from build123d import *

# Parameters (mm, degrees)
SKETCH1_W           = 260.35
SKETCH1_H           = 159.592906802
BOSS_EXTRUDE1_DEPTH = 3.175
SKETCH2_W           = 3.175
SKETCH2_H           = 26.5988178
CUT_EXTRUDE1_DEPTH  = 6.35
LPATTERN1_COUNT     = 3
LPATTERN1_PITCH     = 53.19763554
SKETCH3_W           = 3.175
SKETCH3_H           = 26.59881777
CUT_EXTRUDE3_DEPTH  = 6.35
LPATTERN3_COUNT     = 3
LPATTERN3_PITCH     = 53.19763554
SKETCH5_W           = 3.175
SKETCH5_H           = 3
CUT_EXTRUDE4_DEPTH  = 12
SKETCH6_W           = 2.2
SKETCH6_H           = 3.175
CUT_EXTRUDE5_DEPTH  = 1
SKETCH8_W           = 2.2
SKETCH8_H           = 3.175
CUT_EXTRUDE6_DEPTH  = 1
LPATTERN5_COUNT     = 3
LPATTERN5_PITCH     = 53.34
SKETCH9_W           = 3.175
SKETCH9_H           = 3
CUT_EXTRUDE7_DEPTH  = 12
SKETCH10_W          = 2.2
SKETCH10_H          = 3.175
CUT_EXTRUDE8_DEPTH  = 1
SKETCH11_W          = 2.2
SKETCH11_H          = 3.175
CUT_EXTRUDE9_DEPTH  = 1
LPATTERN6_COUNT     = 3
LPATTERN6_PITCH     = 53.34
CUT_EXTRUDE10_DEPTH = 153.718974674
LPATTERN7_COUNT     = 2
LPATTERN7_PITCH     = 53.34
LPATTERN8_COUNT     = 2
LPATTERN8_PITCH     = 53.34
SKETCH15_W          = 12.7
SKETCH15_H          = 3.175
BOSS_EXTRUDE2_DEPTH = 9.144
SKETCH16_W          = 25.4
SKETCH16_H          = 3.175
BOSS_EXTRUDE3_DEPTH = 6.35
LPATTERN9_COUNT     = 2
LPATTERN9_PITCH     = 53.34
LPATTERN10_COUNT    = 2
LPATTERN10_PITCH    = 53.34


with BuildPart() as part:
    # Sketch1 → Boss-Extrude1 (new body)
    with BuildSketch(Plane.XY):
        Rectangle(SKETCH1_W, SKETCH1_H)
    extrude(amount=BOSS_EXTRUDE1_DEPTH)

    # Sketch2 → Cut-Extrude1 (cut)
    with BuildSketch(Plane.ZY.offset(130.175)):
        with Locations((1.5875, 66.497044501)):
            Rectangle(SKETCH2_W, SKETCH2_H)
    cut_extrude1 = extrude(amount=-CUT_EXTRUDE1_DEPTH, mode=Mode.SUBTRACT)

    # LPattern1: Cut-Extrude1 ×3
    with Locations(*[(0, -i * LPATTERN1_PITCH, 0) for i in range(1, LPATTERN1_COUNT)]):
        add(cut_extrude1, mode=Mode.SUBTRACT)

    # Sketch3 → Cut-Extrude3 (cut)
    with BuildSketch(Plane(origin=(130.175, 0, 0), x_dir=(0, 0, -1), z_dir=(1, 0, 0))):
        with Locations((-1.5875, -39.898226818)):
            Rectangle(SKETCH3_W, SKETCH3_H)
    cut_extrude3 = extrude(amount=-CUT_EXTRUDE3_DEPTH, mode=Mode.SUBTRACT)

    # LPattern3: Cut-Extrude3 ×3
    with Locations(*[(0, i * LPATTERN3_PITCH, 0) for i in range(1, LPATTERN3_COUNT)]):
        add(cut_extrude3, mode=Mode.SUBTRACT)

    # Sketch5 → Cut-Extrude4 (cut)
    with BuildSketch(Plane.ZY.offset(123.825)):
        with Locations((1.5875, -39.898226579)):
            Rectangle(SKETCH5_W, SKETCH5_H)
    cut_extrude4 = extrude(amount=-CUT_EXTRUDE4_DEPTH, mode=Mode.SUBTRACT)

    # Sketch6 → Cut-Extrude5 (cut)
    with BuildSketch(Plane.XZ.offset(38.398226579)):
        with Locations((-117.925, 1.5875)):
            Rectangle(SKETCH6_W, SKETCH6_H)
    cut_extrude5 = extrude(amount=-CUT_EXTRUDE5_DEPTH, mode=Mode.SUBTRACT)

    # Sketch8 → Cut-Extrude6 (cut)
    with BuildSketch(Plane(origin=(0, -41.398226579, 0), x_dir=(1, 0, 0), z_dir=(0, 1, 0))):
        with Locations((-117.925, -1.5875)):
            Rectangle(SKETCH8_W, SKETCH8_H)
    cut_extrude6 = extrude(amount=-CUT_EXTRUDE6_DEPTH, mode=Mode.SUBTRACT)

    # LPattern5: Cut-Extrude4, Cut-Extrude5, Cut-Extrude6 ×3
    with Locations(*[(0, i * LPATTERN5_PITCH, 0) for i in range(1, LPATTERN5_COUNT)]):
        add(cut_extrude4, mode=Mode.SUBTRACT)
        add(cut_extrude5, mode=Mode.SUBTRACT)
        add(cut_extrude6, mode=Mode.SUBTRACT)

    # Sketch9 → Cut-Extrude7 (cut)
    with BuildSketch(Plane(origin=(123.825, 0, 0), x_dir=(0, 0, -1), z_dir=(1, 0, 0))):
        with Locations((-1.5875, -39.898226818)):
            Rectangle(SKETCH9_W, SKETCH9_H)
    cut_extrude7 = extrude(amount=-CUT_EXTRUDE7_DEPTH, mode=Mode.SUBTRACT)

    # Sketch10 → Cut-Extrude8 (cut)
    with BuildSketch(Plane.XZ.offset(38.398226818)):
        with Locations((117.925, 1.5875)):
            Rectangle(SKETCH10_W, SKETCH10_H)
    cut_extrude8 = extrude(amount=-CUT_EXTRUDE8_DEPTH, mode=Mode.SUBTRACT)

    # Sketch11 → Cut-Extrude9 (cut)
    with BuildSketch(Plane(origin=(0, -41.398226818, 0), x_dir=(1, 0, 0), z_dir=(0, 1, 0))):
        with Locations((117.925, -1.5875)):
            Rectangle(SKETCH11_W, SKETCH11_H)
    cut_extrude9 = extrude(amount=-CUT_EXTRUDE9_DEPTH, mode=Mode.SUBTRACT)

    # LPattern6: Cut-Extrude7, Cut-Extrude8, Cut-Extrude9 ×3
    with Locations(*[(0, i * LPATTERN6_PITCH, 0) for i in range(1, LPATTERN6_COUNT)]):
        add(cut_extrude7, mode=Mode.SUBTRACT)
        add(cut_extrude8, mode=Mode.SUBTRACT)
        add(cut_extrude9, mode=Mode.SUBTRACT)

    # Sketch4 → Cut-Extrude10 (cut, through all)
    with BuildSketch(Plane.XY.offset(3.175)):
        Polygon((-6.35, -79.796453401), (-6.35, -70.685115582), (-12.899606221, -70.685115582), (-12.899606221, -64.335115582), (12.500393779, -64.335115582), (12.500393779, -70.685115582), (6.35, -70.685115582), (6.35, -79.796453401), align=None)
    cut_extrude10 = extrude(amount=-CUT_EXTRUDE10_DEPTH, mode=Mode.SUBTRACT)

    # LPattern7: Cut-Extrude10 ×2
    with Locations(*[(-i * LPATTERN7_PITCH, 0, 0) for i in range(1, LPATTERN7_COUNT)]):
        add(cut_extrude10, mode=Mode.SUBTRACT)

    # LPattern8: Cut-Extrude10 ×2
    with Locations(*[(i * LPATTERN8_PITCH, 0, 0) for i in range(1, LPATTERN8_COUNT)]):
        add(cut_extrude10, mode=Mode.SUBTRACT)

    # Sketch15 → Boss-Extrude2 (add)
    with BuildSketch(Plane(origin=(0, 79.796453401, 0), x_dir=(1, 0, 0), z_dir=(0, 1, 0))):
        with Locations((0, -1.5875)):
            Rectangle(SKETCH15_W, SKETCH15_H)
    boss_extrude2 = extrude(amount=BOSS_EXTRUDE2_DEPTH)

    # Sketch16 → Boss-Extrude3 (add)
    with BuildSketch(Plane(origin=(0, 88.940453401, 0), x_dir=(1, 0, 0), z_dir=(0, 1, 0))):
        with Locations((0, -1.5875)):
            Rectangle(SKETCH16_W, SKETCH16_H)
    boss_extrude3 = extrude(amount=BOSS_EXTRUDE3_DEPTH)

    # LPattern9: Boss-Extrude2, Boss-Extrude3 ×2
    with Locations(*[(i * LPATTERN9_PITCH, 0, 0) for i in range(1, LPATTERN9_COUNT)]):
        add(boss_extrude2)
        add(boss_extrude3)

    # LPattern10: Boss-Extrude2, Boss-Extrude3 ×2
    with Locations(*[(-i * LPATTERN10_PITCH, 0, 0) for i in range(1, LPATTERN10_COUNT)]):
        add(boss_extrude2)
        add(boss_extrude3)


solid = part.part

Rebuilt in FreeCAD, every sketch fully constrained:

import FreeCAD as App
import Part
import Sketcher

V = App.Vector
Q = App.Units.Quantity


def add_polygon(sketch, points):
    """Adds a closed chain of lines whose ends are joined by coincident constraints."""
    first, n = sketch.GeometryCount, len(points)
    for a, b in zip(points, points[1:] + points[:1]):
        sketch.addGeometry(Part.LineSegment(App.Vector(*a, 0), App.Vector(*b, 0)), False)
    for i in range(n):
        sketch.addConstraint(Sketcher.Constraint("Coincident", first + i, 2, first + (i + 1) % n, 1))

doc = App.newDocument("Part")
body = doc.addObject("PartDesign::Body", "Body")

# Sketch on XY plane
sketch1 = doc.addObject("Sketcher::SketchObject", "Sketch")
body.addObject(sketch1)
sketch1.AttachmentSupport = (doc.XY_Plane, [""])
sketch1.MapMode = "FlatFace"
add_polygon(sketch1, [(-130.175, 79.796453), (-130.175, -79.796453), (130.175, -79.796453), (130.175, 79.796453)])  # lines 0-3
sketch1.addConstraint([
    Sketcher.Constraint("Vertical", 0),
    Sketcher.Constraint("Horizontal", 1),
    Sketcher.Constraint("Vertical", 2),
    Sketcher.Constraint("Horizontal", 3),
    Sketcher.Constraint("Symmetric", 0, 2, 2, 2, -1, 1),
    Sketcher.Constraint("DistanceX", 1, 1, 1, 2, Q("10.25 in")),
    Sketcher.Constraint("DistanceY", 0, 2, 0, 1, 159.592907),
])
pad1 = doc.addObject("PartDesign::Pad", "Pad")
body.addObject(pad1)
pad1.Profile = sketch1
pad1.Length = Q("0.125 in")

# Sketch on YZ plane
sketch2 = doc.addObject("Sketcher::SketchObject", "Sketch001")
body.addObject(sketch2)
sketch2.AttachmentSupport = (doc.YZ_Plane, [""])
sketch2.MapMode = "FlatFace"
sketch2.AttachmentOffset = App.Placement(V(0, 0, -5.125 * 25.4), App.Rotation())
add_polygon(sketch2, [(79.796453, 0), (53.197636, 0), (53.197636, 3.175), (79.796453, 3.175)])  # lines 0-3
sketch2.addConstraint([
    Sketcher.Constraint("Horizontal", 0),
    Sketcher.Constraint("Vertical", 1),
    Sketcher.Constraint("Horizontal", 2),
    Sketcher.Constraint("Vertical", 3),
    Sketcher.Constraint("PointOnObject", 0, 2, -1),
    Sketcher.Constraint("DistanceY", 1, 1, 1, 2, Q("0.125 in")),
    Sketcher.Constraint("DistanceX", 0, 2, 0, 1, 26.598818),
    Sketcher.Constraint("DistanceX", -1, 1, 0, 2, 53.197636),
])
pocket1 = doc.addObject("PartDesign::Pocket", "Pocket")
body.addObject(pocket1)
pocket1.Profile = sketch2
pocket1.Length = Q("0.25 in")
pocket1.Reversed = True
doc.recompute()

linearpattern = doc.addObject("PartDesign::LinearPattern", "LinearPattern")
body.addObject(linearpattern)
linearpattern.Originals = [pocket1]
linearpattern.Direction = (doc.Y_Axis, [""])
linearpattern.Mode = "offset"
linearpattern.Offset = 53.197636
linearpattern.Occurrences = 3
linearpattern.Reversed = True
body.Tip = linearpattern

# Sketch on YZ plane
sketch3 = doc.addObject("Sketcher::SketchObject", "Sketch002")
body.addObject(sketch3)
sketch3.AttachmentSupport = (doc.YZ_Plane, [""])
sketch3.MapMode = "FlatFace"
sketch3.AttachmentOffset = App.Placement(V(0, 0, 5.125 * 25.4), App.Rotation())
add_polygon(sketch3, [(-26.598818, 3.175), (-53.197636, 3.175), (-53.197636, 0), (-26.598818, 0)])  # lines 0-3
sketch3.addConstraint([
    Sketcher.Constraint("Horizontal", 0),
    Sketcher.Constraint("Vertical", 1),
    Sketcher.Constraint("Horizontal", 2),
    Sketcher.Constraint("Vertical", 3),
    Sketcher.Constraint("PointOnObject", 1, 2, -1),
    Sketcher.Constraint("DistanceY", 1, 2, 1, 1, Q("0.125 in")),
    Sketcher.Constraint("DistanceX", 0, 2, 0, 1, 26.598818),
    Sketcher.Constraint("DistanceX", 0, 2, -1, 1, 53.197636),
])
pocket2 = doc.addObject("PartDesign::Pocket", "Pocket001")
body.addObject(pocket2)
pocket2.Profile = sketch3
pocket2.Length = Q("0.25 in")
doc.recompute()

linearpattern2 = doc.addObject("PartDesign::LinearPattern", "LinearPattern001")
body.addObject(linearpattern2)
linearpattern2.Originals = [pocket2]
linearpattern2.Direction = (doc.Y_Axis, [""])
linearpattern2.Mode = "offset"
linearpattern2.Offset = 53.197636
linearpattern2.Occurrences = 3
body.Tip = linearpattern2

# Sketch on YZ plane
sketch4 = doc.addObject("Sketcher::SketchObject", "Sketch003")
body.addObject(sketch4)
sketch4.AttachmentSupport = (doc.YZ_Plane, [""])
sketch4.MapMode = "FlatFace"
sketch4.AttachmentOffset = App.Placement(V(0, 0, -4.875 * 25.4), App.Rotation())
add_polygon(sketch4, [(-38.398227, 0), (-41.398227, 0), (-41.398227, 3.175), (-38.398227, 3.175)])  # lines 0-3
sketch4.addConstraint([
    Sketcher.Constraint("Horizontal", 0),
    Sketcher.Constraint("Vertical", 1),
    Sketcher.Constraint("Horizontal", 2),
    Sketcher.Constraint("Vertical", 3),
    Sketcher.Constraint("PointOnObject", 0, 2, -1),
    Sketcher.Constraint("DistanceY", 1, 1, 1, 2, Q("0.125 in")),
    Sketcher.Constraint("DistanceX", 0, 2, 0, 1, 3.0),
    Sketcher.Constraint("DistanceX", 0, 2, -1, 1, 41.398227),
])
pocket3 = doc.addObject("PartDesign::Pocket", "Pocket002")
body.addObject(pocket3)
pocket3.Profile = sketch4
pocket3.Length = 12
pocket3.Reversed = True

# Sketch on XZ plane
sketch5 = doc.addObject("Sketcher::SketchObject", "Sketch004")
body.addObject(sketch5)
sketch5.AttachmentSupport = (doc.XZ_Plane, [""])
sketch5.MapMode = "FlatFace"
sketch5.AttachmentOffset = App.Placement(V(0, 0, 38.398227), App.Rotation())
add_polygon(sketch5, [(-119.025, 3.175), (-119.025, 0), (-116.825, 0), (-116.825, 3.175)])  # lines 0-3
sketch5.addConstraint([
    Sketcher.Constraint("Vertical", 0),
    Sketcher.Constraint("Horizontal", 1),
    Sketcher.Constraint("Vertical", 2),
    Sketcher.Constraint("Horizontal", 3),
    Sketcher.Constraint("PointOnObject", 0, 2, -1),
    Sketcher.Constraint("DistanceY", 0, 2, 0, 1, Q("0.125 in")),
    Sketcher.Constraint("DistanceX", 1, 1, 1, 2, 2.2),
    Sketcher.Constraint("DistanceX", 0, 2, -1, 1, 119.025),
])
pocket4 = doc.addObject("PartDesign::Pocket", "Pocket003")
body.addObject(pocket4)
pocket4.Profile = sketch5
pocket4.Length = 1

# Sketch on XZ plane
sketch6 = doc.addObject("Sketcher::SketchObject", "Sketch005")
body.addObject(sketch6)
sketch6.AttachmentSupport = (doc.XZ_Plane, [""])
sketch6.MapMode = "FlatFace"
sketch6.AttachmentOffset = App.Placement(V(0, 0, 41.398227), App.Rotation())
add_polygon(sketch6, [(-119.025, 0), (-119.025, 3.175), (-116.825, 3.175), (-116.825, 0)])  # lines 0-3
sketch6.addConstraint([
    Sketcher.Constraint("Vertical", 0),
    Sketcher.Constraint("Horizontal", 1),
    Sketcher.Constraint("Vertical", 2),
    Sketcher.Constraint("Horizontal", 3),
    Sketcher.Constraint("PointOnObject", 2, 2, -1),
    Sketcher.Constraint("DistanceY", 0, 1, 0, 2, Q("0.125 in")),
    Sketcher.Constraint("DistanceX", 1, 1, 1, 2, 2.2),
    Sketcher.Constraint("DistanceX", 0, 2, -1, 1, 119.025),
])
pocket5 = doc.addObject("PartDesign::Pocket", "Pocket004")
body.addObject(pocket5)
pocket5.Profile = sketch6
pocket5.Length = 1
pocket5.Reversed = True
doc.recompute()

linearpattern3 = doc.addObject("PartDesign::LinearPattern", "LinearPattern002")
body.addObject(linearpattern3)
linearpattern3.Originals = [pocket3, pocket4, pocket5]
linearpattern3.Direction = (doc.Y_Axis, [""])
linearpattern3.Mode = "offset"
linearpattern3.Offset = Q("2.1 in")
linearpattern3.Occurrences = 3
body.Tip = linearpattern3

# Sketch on YZ plane
sketch7 = doc.addObject("Sketcher::SketchObject", "Sketch006")
body.addObject(sketch7)
sketch7.AttachmentSupport = (doc.YZ_Plane, [""])
sketch7.MapMode = "FlatFace"
sketch7.AttachmentOffset = App.Placement(V(0, 0, 4.875 * 25.4), App.Rotation())
add_polygon(sketch7, [(-38.398227, 3.175), (-41.398227, 3.175), (-41.398227, 0), (-38.398227, 0)])  # lines 0-3
sketch7.addConstraint([
    Sketcher.Constraint("Horizontal", 0),
    Sketcher.Constraint("Vertical", 1),
    Sketcher.Constraint("Horizontal", 2),
    Sketcher.Constraint("Vertical", 3),
    Sketcher.Constraint("PointOnObject", 1, 2, -1),
    Sketcher.Constraint("DistanceY", 1, 2, 1, 1, Q("0.125 in")),
    Sketcher.Constraint("DistanceX", 0, 2, 0, 1, 3.0),
    Sketcher.Constraint("DistanceX", 0, 2, -1, 1, 41.398227),
])
pocket6 = doc.addObject("PartDesign::Pocket", "Pocket005")
body.addObject(pocket6)
pocket6.Profile = sketch7
pocket6.Length = 12

# Sketch on XZ plane
sketch8 = doc.addObject("Sketcher::SketchObject", "Sketch007")
body.addObject(sketch8)
sketch8.AttachmentSupport = (doc.XZ_Plane, [""])
sketch8.MapMode = "FlatFace"
sketch8.AttachmentOffset = App.Placement(V(0, 0, 38.398227), App.Rotation())
add_polygon(sketch8, [(116.825, 3.175), (116.825, 0), (119.025, 0), (119.025, 3.175)])  # lines 0-3
sketch8.addConstraint([
    Sketcher.Constraint("Vertical", 0),
    Sketcher.Constraint("Horizontal", 1),
    Sketcher.Constraint("Vertical", 2),
    Sketcher.Constraint("Horizontal", 3),
    Sketcher.Constraint("PointOnObject", 0, 2, -1),
    Sketcher.Constraint("DistanceY", 0, 2, 0, 1, Q("0.125 in")),
    Sketcher.Constraint("DistanceX", 1, 1, 1, 2, 2.2),
    Sketcher.Constraint("DistanceX", -1, 1, 0, 2, 116.825),
])
pocket7 = doc.addObject("PartDesign::Pocket", "Pocket006")
body.addObject(pocket7)
pocket7.Profile = sketch8
pocket7.Length = 1

# Sketch on XZ plane
sketch9 = doc.addObject("Sketcher::SketchObject", "Sketch008")
body.addObject(sketch9)
sketch9.AttachmentSupport = (doc.XZ_Plane, [""])
sketch9.MapMode = "FlatFace"
sketch9.AttachmentOffset = App.Placement(V(0, 0, 41.398227), App.Rotation())
add_polygon(sketch9, [(116.825, 0), (116.825, 3.175), (119.025, 3.175), (119.025, 0)])  # lines 0-3
sketch9.addConstraint([
    Sketcher.Constraint("Vertical", 0),
    Sketcher.Constraint("Horizontal", 1),
    Sketcher.Constraint("Vertical", 2),
    Sketcher.Constraint("Horizontal", 3),
    Sketcher.Constraint("PointOnObject", 2, 2, -1),
    Sketcher.Constraint("DistanceY", 0, 1, 0, 2, Q("0.125 in")),
    Sketcher.Constraint("DistanceX", 1, 1, 1, 2, 2.2),
    Sketcher.Constraint("DistanceX", -1, 1, 0, 2, 116.825),
])
pocket8 = doc.addObject("PartDesign::Pocket", "Pocket007")
body.addObject(pocket8)
pocket8.Profile = sketch9
pocket8.Length = 1
pocket8.Reversed = True
doc.recompute()

linearpattern4 = doc.addObject("PartDesign::LinearPattern", "LinearPattern003")
body.addObject(linearpattern4)
linearpattern4.Originals = [pocket6, pocket7, pocket8]
linearpattern4.Direction = (doc.Y_Axis, [""])
linearpattern4.Mode = "offset"
linearpattern4.Offset = Q("2.1 in")
linearpattern4.Occurrences = 3
body.Tip = linearpattern4

# Sketch on XY plane
sketch10 = doc.addObject("Sketcher::SketchObject", "Sketch009")
body.addObject(sketch10)
sketch10.AttachmentSupport = (doc.XY_Plane, [""])
sketch10.MapMode = "FlatFace"
sketch10.AttachmentOffset = App.Placement(V(0, 0, 0.125 * 25.4), App.Rotation())
add_polygon(sketch10, [(-6.35, -70.685116), (-6.35, -79.796453), (6.35, -79.796453), (6.35, -70.685116), (12.500394, -70.685116), (12.500394, -64.335116), (-12.899606, -64.335116), (-12.899606, -70.685116)])  # lines 0-7
sketch10.addConstraint([
    Sketcher.Constraint("Vertical", 0),
    Sketcher.Constraint("Horizontal", 1),
    Sketcher.Constraint("Vertical", 2),
    Sketcher.Constraint("Horizontal", 3),
    Sketcher.Constraint("Vertical", 4),
    Sketcher.Constraint("Horizontal", 5),
    Sketcher.Constraint("Vertical", 6),
    Sketcher.Constraint("Horizontal", 7),
    Sketcher.Constraint("Symmetric", 2, 2, 7, 2, -2),
    Sketcher.Constraint("DistanceX", 5, 2, 5, 1, Q("1 in")),
    Sketcher.Constraint("DistanceX", 1, 1, 1, 2, Q("0.5 in")),
    Sketcher.Constraint("DistanceY", 4, 1, 4, 2, Q("0.25 in")),
    Sketcher.Constraint("DistanceX", 3, 1, 3, 2, 6.150394),
    Sketcher.Constraint("DistanceY", 0, 2, 0, 1, 9.111338),
    Sketcher.Constraint("DistanceY", 0, 2, -1, 1, 79.796453),
])
pocket9 = doc.addObject("PartDesign::Pocket", "Pocket008")
body.addObject(pocket9)
pocket9.Profile = sketch10
pocket9.Type = "ThroughAll"
doc.recompute()

linearpattern5 = doc.addObject("PartDesign::LinearPattern", "LinearPattern004")
body.addObject(linearpattern5)
linearpattern5.Originals = [pocket9]
linearpattern5.Direction = (doc.X_Axis, [""])
linearpattern5.Mode = "offset"
linearpattern5.Offset = Q("2.1 in")
linearpattern5.Occurrences = 2
linearpattern5.Reversed = True
body.Tip = linearpattern5
doc.recompute()

linearpattern6 = doc.addObject("PartDesign::LinearPattern", "LinearPattern005")
body.addObject(linearpattern6)
linearpattern6.Originals = [pocket9]
linearpattern6.Direction = (doc.X_Axis, [""])
linearpattern6.Mode = "offset"
linearpattern6.Offset = Q("2.1 in")
linearpattern6.Occurrences = 2
body.Tip = linearpattern6

# Sketch on XZ plane
sketch11 = doc.addObject("Sketcher::SketchObject", "Sketch010")
body.addObject(sketch11)
sketch11.AttachmentSupport = (doc.XZ_Plane, [""])
sketch11.MapMode = "FlatFace"
sketch11.AttachmentOffset = App.Placement(V(0, 0, -79.796453), App.Rotation())
add_polygon(sketch11, [(-6.35, 0), (-6.35, 3.175), (6.35, 3.175), (6.35, 0)])  # lines 0-3
sketch11.addConstraint([
    Sketcher.Constraint("Vertical", 0),
    Sketcher.Constraint("Horizontal", 1),
    Sketcher.Constraint("Vertical", 2),
    Sketcher.Constraint("Horizontal", 3),
    Sketcher.Constraint("Symmetric", 2, 2, 3, 2, -1, 1),
    Sketcher.Constraint("DistanceX", 1, 1, 1, 2, Q("0.5 in")),
    Sketcher.Constraint("DistanceY", 0, 1, 0, 2, Q("0.125 in")),
])
pad2 = doc.addObject("PartDesign::Pad", "Pad001")
body.addObject(pad2)
pad2.Profile = sketch11
pad2.Length = Q("0.36 in")
pad2.Reversed = True

# Sketch on XZ plane
sketch12 = doc.addObject("Sketcher::SketchObject", "Sketch011")
body.addObject(sketch12)
sketch12.AttachmentSupport = (doc.XZ_Plane, [""])
sketch12.MapMode = "FlatFace"
sketch12.AttachmentOffset = App.Placement(V(0, 0, -88.940453), App.Rotation())
add_polygon(sketch12, [(-12.7, 0), (-12.7, 3.175), (12.7, 3.175), (12.7, 0)])  # lines 0-3
sketch12.addConstraint([
    Sketcher.Constraint("Vertical", 0),
    Sketcher.Constraint("Horizontal", 1),
    Sketcher.Constraint("Vertical", 2),
    Sketcher.Constraint("Horizontal", 3),
    Sketcher.Constraint("Symmetric", 2, 2, 3, 2, -1, 1),
    Sketcher.Constraint("DistanceX", 1, 1, 1, 2, Q("1 in")),
    Sketcher.Constraint("DistanceY", 0, 1, 0, 2, Q("0.125 in")),
])
pad3 = doc.addObject("PartDesign::Pad", "Pad002")
body.addObject(pad3)
pad3.Profile = sketch12
pad3.Length = Q("0.25 in")
pad3.Reversed = True
doc.recompute()

linearpattern7 = doc.addObject("PartDesign::LinearPattern", "LinearPattern006")
body.addObject(linearpattern7)
linearpattern7.Originals = [pad2, pad3]
linearpattern7.Direction = (doc.X_Axis, [""])
linearpattern7.Mode = "offset"
linearpattern7.Offset = Q("2.1 in")
linearpattern7.Occurrences = 2
body.Tip = linearpattern7
doc.recompute()

linearpattern8 = doc.addObject("PartDesign::LinearPattern", "LinearPattern007")
body.addObject(linearpattern8)
linearpattern8.Originals = [pad2, pad3]
linearpattern8.Direction = (doc.X_Axis, [""])
linearpattern8.Mode = "offset"
linearpattern8.Offset = Q("2.1 in")
linearpattern8.Occurrences = 2
linearpattern8.Reversed = True
body.Tip = linearpattern8

doc.recompute()
